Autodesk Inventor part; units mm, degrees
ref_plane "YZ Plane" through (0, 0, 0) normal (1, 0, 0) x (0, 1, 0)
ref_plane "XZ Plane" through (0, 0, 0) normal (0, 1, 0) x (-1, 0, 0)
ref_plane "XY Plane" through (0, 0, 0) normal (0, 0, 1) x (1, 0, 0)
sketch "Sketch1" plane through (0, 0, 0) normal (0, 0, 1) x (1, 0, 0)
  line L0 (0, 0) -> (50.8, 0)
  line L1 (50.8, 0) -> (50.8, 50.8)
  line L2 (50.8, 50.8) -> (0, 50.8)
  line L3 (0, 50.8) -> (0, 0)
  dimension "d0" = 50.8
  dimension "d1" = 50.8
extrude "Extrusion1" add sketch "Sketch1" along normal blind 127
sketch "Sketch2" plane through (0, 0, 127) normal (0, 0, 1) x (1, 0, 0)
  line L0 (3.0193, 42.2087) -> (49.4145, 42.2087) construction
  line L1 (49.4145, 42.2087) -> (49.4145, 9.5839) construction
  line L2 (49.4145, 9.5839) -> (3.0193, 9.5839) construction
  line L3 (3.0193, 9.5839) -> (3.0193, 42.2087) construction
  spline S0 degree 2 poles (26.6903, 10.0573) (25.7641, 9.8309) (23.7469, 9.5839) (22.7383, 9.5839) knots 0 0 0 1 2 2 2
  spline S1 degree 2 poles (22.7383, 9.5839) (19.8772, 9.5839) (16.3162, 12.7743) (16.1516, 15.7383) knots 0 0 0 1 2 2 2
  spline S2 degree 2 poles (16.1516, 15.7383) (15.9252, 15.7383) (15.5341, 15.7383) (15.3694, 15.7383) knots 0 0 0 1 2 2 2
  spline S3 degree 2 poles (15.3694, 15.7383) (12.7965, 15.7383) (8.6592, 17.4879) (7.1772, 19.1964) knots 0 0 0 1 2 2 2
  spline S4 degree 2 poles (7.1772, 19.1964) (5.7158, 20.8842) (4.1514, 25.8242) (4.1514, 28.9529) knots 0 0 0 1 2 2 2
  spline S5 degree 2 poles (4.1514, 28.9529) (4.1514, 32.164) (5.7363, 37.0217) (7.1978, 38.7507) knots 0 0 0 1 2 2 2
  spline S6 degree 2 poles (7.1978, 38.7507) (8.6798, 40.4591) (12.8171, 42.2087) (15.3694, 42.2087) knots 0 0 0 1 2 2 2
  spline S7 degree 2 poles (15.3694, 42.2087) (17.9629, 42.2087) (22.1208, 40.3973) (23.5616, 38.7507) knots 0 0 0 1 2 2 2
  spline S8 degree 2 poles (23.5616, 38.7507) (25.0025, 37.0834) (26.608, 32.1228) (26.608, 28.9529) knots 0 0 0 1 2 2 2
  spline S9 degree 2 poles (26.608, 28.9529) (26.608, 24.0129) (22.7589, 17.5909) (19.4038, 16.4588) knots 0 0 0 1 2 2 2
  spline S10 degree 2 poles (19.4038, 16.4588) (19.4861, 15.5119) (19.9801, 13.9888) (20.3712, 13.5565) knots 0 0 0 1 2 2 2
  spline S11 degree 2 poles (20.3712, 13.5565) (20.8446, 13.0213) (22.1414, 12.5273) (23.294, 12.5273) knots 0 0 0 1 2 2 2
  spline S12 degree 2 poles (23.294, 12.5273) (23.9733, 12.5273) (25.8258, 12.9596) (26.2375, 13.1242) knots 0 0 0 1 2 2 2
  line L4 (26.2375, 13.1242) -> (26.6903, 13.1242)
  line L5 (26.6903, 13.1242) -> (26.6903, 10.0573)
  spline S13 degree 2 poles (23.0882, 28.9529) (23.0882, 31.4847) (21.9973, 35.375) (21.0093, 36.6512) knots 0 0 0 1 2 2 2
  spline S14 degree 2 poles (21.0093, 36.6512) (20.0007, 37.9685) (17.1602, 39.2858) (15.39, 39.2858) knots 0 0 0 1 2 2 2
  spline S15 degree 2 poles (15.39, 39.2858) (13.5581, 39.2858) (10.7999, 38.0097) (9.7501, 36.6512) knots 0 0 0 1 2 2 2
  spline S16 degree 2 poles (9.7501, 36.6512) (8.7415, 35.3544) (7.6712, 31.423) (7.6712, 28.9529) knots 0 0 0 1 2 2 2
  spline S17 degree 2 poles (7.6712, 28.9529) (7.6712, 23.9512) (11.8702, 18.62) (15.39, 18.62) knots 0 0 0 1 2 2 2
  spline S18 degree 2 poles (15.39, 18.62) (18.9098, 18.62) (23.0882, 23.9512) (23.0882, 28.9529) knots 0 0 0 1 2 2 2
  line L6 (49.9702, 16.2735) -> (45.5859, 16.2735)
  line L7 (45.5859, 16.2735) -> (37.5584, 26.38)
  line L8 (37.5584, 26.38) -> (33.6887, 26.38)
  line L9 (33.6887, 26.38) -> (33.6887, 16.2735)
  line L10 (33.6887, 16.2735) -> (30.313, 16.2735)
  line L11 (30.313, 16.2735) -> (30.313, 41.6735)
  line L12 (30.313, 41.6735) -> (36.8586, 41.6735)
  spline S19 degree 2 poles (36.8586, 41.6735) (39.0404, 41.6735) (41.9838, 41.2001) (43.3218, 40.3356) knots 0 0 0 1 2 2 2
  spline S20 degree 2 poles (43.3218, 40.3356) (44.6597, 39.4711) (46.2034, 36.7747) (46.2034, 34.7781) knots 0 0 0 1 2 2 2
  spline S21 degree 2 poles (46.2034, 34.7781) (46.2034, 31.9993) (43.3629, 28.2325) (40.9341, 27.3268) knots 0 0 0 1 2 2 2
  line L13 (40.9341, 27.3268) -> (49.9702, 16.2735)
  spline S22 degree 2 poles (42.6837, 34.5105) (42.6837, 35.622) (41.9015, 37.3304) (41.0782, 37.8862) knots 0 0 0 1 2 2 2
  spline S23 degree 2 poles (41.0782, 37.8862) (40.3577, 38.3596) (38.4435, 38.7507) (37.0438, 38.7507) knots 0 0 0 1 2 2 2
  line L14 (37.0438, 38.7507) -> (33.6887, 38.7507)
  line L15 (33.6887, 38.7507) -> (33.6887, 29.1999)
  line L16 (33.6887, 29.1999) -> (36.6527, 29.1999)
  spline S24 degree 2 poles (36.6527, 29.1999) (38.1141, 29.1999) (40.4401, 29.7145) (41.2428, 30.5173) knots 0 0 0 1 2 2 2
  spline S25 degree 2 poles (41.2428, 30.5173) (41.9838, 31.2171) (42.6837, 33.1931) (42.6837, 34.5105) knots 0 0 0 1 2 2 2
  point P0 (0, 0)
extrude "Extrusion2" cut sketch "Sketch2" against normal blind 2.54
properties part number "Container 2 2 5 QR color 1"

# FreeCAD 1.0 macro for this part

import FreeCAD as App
import Part
import Sketcher

V = App.Vector
Q = App.Units.Quantity


def add_polygon(sketch, points):
    """Adds a closed chain of lines whose ends are joined by coincident constraints."""
    first, n = sketch.GeometryCount, len(points)
    for a, b in zip(points, points[1:] + points[:1]):
        sketch.addGeometry(Part.LineSegment(App.Vector(*a, 0), App.Vector(*b, 0)), False)
    for i in range(n):
        sketch.addConstraint(Sketcher.Constraint("Coincident", first + i, 2, first + (i + 1) % n, 1))

doc = App.newDocument("Part")
body = doc.addObject("PartDesign::Body", "Body")

# Sketch on XY plane
sketch1 = body.newObject("Sketcher::SketchObject", "Sketch")
sketch1.AttachmentSupport = (doc.getObject("XY_Plane"), [""])
sketch1.MapMode = "FlatFace"
add_polygon(sketch1, [(0, 51), (0, 0), (51, 0), (51, 51)])  # lines 0-3
sketch1.addConstraint([
    Sketcher.Constraint("Vertical", 0),
    Sketcher.Constraint("Horizontal", 1),
    Sketcher.Constraint("Vertical", 2),
    Sketcher.Constraint("Horizontal", 3),
    Sketcher.Constraint("Coincident", 0, 2, -1, 1),
    Sketcher.Constraint("Equal", 3, 0),
    Sketcher.Constraint("DistanceX", 1, 1, 1, 2, Q("2 in")),
])
pad1 = body.newObject("PartDesign::Pad", "Pad")
pad1.Profile = sketch1
pad1.Length = Q("5 in")

# Sketch on XY plane
sketch2 = body.newObject("Sketcher::SketchObject", "Sketch001")
sketch2.AttachmentSupport = (doc.getObject("XY_Plane"), [""])
sketch2.MapMode = "FlatFace"
sketch2.AttachmentOffset = App.Placement(V(0, 0, 5 * 25.4), App.Rotation())
sketch2.addGeometry([
    Part.BSplineCurve([V(26.6903, 10.0573, 0), V(25.7641, 9.8309, 0), V(23.7469, 9.5839, 0), V(22.7383, 9.5839, 0)], [3, 1, 3], [0, 1, 2], False, 2, [1, 1, 1, 1], False),  # 0
    Part.LineSegment(V(26.6903, 10.0573, 0), V(26.6903, 13.1242, 0)),  # 1
    Part.LineSegment(V(26.6903, 13.1242, 0), V(26.2375, 13.1242, 0)),  # 2
    Part.BSplineCurve([V(23.294, 12.5273, 0), V(23.9733, 12.5273, 0), V(25.8258, 12.9596, 0), V(26.2375, 13.1242, 0)], [3, 1, 3], [0, 1, 2], False, 2, [1, 1, 1, 1], False),  # 3
    Part.BSplineCurve([V(20.3712, 13.5565, 0), V(20.8446, 13.0213, 0), V(22.1414, 12.5273, 0), V(23.294, 12.5273, 0)], [3, 1, 3], [0, 1, 2], False, 2, [1, 1, 1, 1], False),  # 4
    Part.BSplineCurve([V(19.4038, 16.4588, 0), V(19.4861, 15.5119, 0), V(19.9801, 13.9888, 0), V(20.3712, 13.5565, 0)], [3, 1, 3], [0, 1, 2], False, 2, [1, 1, 1, 1], False),  # 5
    Part.BSplineCurve([V(26.608, 28.9529, 0), V(26.608, 24.0129, 0), V(22.7589, 17.5909, 0), V(19.4038, 16.4588, 0)], [3, 1, 3], [0, 1, 2], False, 2, [1, 1, 1, 1], False),  # 6
    Part.BSplineCurve([V(23.5616, 38.7507, 0), V(25.0025, 37.0834, 0), V(26.608, 32.1228, 0), V(26.608, 28.9529, 0)], [3, 1, 3], [0, 1, 2], False, 2, [1, 1, 1, 1], False),  # 7
    Part.BSplineCurve([V(15.3694, 42.2087, 0), V(17.9629, 42.2087, 0), V(22.1208, 40.3973, 0), V(23.5616, 38.7507, 0)], [3, 1, 3], [0, 1, 2], False, 2, [1, 1, 1, 1], False),  # 8
    Part.BSplineCurve([V(7.1978, 38.7507, 0), V(8.6798, 40.4591, 0), V(12.8171, 42.2087, 0), V(15.3694, 42.2087, 0)], [3, 1, 3], [0, 1, 2], False, 2, [1, 1, 1, 1], False),  # 9
    Part.BSplineCurve([V(4.1514, 28.9529, 0), V(4.1514, 32.164, 0), V(5.7363, 37.0217, 0), V(7.1978, 38.7507, 0)], [3, 1, 3], [0, 1, 2], False, 2, [1, 1, 1, 1], False),  # 10
    Part.BSplineCurve([V(7.1772, 19.1964, 0), V(5.7158, 20.8842, 0), V(4.1514, 25.8242, 0), V(4.1514, 28.9529, 0)], [3, 1, 3], [0, 1, 2], False, 2, [1, 1, 1, 1], False),  # 11
    Part.BSplineCurve([V(15.3694, 15.7383, 0), V(12.7965, 15.7383, 0), V(8.6592, 17.4879, 0), V(7.1772, 19.1964, 0)], [3, 1, 3], [0, 1, 2], False, 2, [1, 1, 1, 1], False),  # 12
    Part.BSplineCurve([V(16.1516, 15.7383, 0), V(15.9252, 15.7383, 0), V(15.5341, 15.7383, 0), V(15.3694, 15.7383, 0)], [3, 1, 3], [0, 1, 2], False, 2, [1, 1, 1, 1], False),  # 13
    Part.BSplineCurve([V(22.7383, 9.5839, 0), V(19.8772, 9.5839, 0), V(16.3162, 12.7743, 0), V(16.1516, 15.7383, 0)], [3, 1, 3], [0, 1, 2], False, 2, [1, 1, 1, 1], False),  # 14
    Part.BSplineCurve([V(23.0882, 28.9529, 0), V(23.0882, 31.4847, 0), V(21.9973, 35.375, 0), V(21.0093, 36.6512, 0)], [3, 1, 3], [0, 1, 2], False, 2, [1, 1, 1, 1], False),  # 15
    Part.BSplineCurve([V(15.39, 18.62, 0), V(18.9098, 18.62, 0), V(23.0882, 23.9512, 0), V(23.0882, 28.9529, 0)], [3, 1, 3], [0, 1, 2], False, 2, [1, 1, 1, 1], False),  # 16
    Part.BSplineCurve([V(7.6712, 28.9529, 0), V(7.6712, 23.9512, 0), V(11.8702, 18.62, 0), V(15.39, 18.62, 0)], [3, 1, 3], [0, 1, 2], False, 2, [1, 1, 1, 1], False),  # 17
    Part.BSplineCurve([V(9.7501, 36.6512, 0), V(8.7415, 35.3544, 0), V(7.6712, 31.423, 0), V(7.6712, 28.9529, 0)], [3, 1, 3], [0, 1, 2], False, 2, [1, 1, 1, 1], False),  # 18
    Part.BSplineCurve([V(15.39, 39.2858, 0), V(13.5581, 39.2858, 0), V(10.7999, 38.0097, 0), V(9.7501, 36.6512, 0)], [3, 1, 3], [0, 1, 2], False, 2, [1, 1, 1, 1], False),  # 19
    Part.BSplineCurve([V(21.0093, 36.6512, 0), V(20.0007, 37.9685, 0), V(17.1602, 39.2858, 0), V(15.39, 39.2858, 0)], [3, 1, 3], [0, 1, 2], False, 2, [1, 1, 1, 1], False),  # 20
    Part.LineSegment(V(45.5859, 16.2735, 0), V(49.9702, 16.2735, 0)),  # 21
    Part.LineSegment(V(49.9702, 16.2735, 0), V(40.9341, 27.3268, 0)),  # 22
    Part.BSplineCurve([V(46.2034, 34.7781, 0), V(46.2034, 31.9993, 0), V(43.3629, 28.2325, 0), V(40.9341, 27.3268, 0)], [3, 1, 3], [0, 1, 2], False, 2, [1, 1, 1, 1], False),  # 23
    Part.BSplineCurve([V(43.3218, 40.3356, 0), V(44.6597, 39.4711, 0), V(46.2034, 36.7747, 0), V(46.2034, 34.7781, 0)], [3, 1, 3], [0, 1, 2], False, 2, [1, 1, 1, 1], False),  # 24
    Part.BSplineCurve([V(36.8586, 41.6735, 0), V(39.0404, 41.6735, 0), V(41.9838, 41.2001, 0), V(43.3218, 40.3356, 0)], [3, 1, 3], [0, 1, 2], False, 2, [1, 1, 1, 1], False),  # 25
    Part.LineSegment(V(36.8586, 41.6735, 0), V(30.313, 41.6735, 0)),  # 26
    Part.LineSegment(V(30.313, 41.6735, 0), V(30.313, 16.2735, 0)),  # 27
    Part.LineSegment(V(30.313, 16.2735, 0), V(33.6887, 16.2735, 0)),  # 28
    Part.LineSegment(V(33.6887, 16.2735, 0), V(33.6887, 26.38, 0)),  # 29
    Part.LineSegment(V(33.6887, 26.38, 0), V(37.5584, 26.38, 0)),  # 30
    Part.LineSegment(V(37.5584, 26.38, 0), V(45.5859, 16.2735, 0)),  # 31
    Part.BSplineCurve([V(42.6837, 34.5105, 0), V(42.6837, 35.622, 0), V(41.9015, 37.3304, 0), V(41.0782, 37.8862, 0)], [3, 1, 3], [0, 1, 2], False, 2, [1, 1, 1, 1], False),  # 32
    Part.BSplineCurve([V(41.2428, 30.5173, 0), V(41.9838, 31.2171, 0), V(42.6837, 33.1931, 0), V(42.6837, 34.5105, 0)], [3, 1, 3], [0, 1, 2], False, 2, [1, 1, 1, 1], False),  # 33
    Part.BSplineCurve([V(36.6527, 29.1999, 0), V(38.1141, 29.1999, 0), V(40.4401, 29.7145, 0), V(41.2428, 30.5173, 0)], [3, 1, 3], [0, 1, 2], False, 2, [1, 1, 1, 1], False),  # 34
    Part.LineSegment(V(36.6527, 29.1999, 0), V(33.6887, 29.1999, 0)),  # 35
    Part.LineSegment(V(33.6887, 29.1999, 0), V(33.6887, 38.7507, 0)),  # 36
    Part.LineSegment(V(33.6887, 38.7507, 0), V(37.0438, 38.7507, 0)),  # 37
    Part.BSplineCurve([V(41.0782, 37.8862, 0), V(40.3577, 38.3596, 0), V(38.4435, 38.7507, 0), V(37.0438, 38.7507, 0)], [3, 1, 3], [0, 1, 2], False, 2, [1, 1, 1, 1], False),  # 38
], False)
sketch2.addConstraint([
    Sketcher.Constraint("Block", 0),
    Sketcher.Constraint("Block", 3),
    Sketcher.Constraint("Block", 4),
    Sketcher.Constraint("Block", 5),
    Sketcher.Constraint("Block", 6),
    Sketcher.Constraint("Block", 7),
    Sketcher.Constraint("Block", 8),
    Sketcher.Constraint("Block", 9),
    Sketcher.Constraint("Block", 10),
    Sketcher.Constraint("Block", 11),
    Sketcher.Constraint("Block", 12),
    Sketcher.Constraint("Block", 13),
    Sketcher.Constraint("Block", 14),
    Sketcher.Constraint("Block", 15),
    Sketcher.Constraint("Block", 16),
    Sketcher.Constraint("Block", 17),
    Sketcher.Constraint("Block", 18),
    Sketcher.Constraint("Block", 19),
    Sketcher.Constraint("Block", 20),
    Sketcher.Constraint("Block", 23),
    Sketcher.Constraint("Block", 24),
    Sketcher.Constraint("Block", 25),
    Sketcher.Constraint("Block", 32),
    Sketcher.Constraint("Block", 33),
    Sketcher.Constraint("Block", 34),
    Sketcher.Constraint("Block", 38),
    Sketcher.Constraint("Coincident", 0, 1, 1, 1),
    Sketcher.Constraint("Coincident", 1, 2, 2, 1),
    Sketcher.Constraint("Coincident", 2, 2, 3, 2),
    Sketcher.Constraint("Coincident", 21, 2, 22, 1),
    Sketcher.Constraint("Coincident", 22, 2, 23, 2),
    Sketcher.Constraint("Coincident", 25, 1, 26, 1),
    Sketcher.Constraint("Coincident", 26, 2, 27, 1),
    Sketcher.Constraint("Coincident", 27, 2, 28, 1),
    Sketcher.Constraint("Coincident", 28, 2, 29, 1),
    Sketcher.Constraint("Coincident", 29, 2, 30, 1),
    Sketcher.Constraint("Coincident", 30, 2, 31, 1),
    Sketcher.Constraint("Coincident", 31, 2, 21, 1),
    Sketcher.Constraint("Coincident", 34, 1, 35, 1),
    Sketcher.Constraint("Coincident", 35, 2, 36, 1),
    Sketcher.Constraint("Coincident", 36, 2, 37, 1),
    Sketcher.Constraint("Coincident", 37, 2, 38, 2),
    Sketcher.Constraint("Vertical", 1),
    Sketcher.Constraint("Horizontal", 2),
    Sketcher.Constraint("Horizontal", 21),
    Sketcher.Constraint("Horizontal", 26),
    Sketcher.Constraint("Vertical", 27),
    Sketcher.Constraint("Horizontal", 28),
    Sketcher.Constraint("Vertical", 29),
    Sketcher.Constraint("Horizontal", 30),
    Sketcher.Constraint("Horizontal", 35),
    Sketcher.Constraint("Vertical", 36),
    Sketcher.Constraint("Horizontal", 37),
    Sketcher.Constraint("Horizontal", 21, 2, 27, 2),
    Sketcher.Constraint("Vertical", 29, 2, 35, 2),
    Sketcher.Constraint("DistanceY", 27, 2, 27, 1, Q("1 in")),
    Sketcher.Constraint("Angle", 31, Q("-51.5402 deg")),
    Sketcher.Constraint("DistanceX", 21, 1, 21, 2, Q("0.1726 in")),
    Sketcher.Constraint("DistanceX", 26, 2, 26, 1, Q("0.2577 in")),
    Sketcher.Constraint("DistanceX", 28, 1, 28, 2, Q("0.1329 in")),
    Sketcher.Constraint("DistanceY", 29, 1, 29, 2, Q("0.3979 in")),
    Sketcher.Constraint("DistanceX", 28, 2, 21, 2, Q("0.641 in")),
])
pocket1 = body.newObject("PartDesign::Pocket", "Pocket")
pocket1.Profile = sketch2
pocket1.Length = Q("0.1 in")

doc.recompute()
